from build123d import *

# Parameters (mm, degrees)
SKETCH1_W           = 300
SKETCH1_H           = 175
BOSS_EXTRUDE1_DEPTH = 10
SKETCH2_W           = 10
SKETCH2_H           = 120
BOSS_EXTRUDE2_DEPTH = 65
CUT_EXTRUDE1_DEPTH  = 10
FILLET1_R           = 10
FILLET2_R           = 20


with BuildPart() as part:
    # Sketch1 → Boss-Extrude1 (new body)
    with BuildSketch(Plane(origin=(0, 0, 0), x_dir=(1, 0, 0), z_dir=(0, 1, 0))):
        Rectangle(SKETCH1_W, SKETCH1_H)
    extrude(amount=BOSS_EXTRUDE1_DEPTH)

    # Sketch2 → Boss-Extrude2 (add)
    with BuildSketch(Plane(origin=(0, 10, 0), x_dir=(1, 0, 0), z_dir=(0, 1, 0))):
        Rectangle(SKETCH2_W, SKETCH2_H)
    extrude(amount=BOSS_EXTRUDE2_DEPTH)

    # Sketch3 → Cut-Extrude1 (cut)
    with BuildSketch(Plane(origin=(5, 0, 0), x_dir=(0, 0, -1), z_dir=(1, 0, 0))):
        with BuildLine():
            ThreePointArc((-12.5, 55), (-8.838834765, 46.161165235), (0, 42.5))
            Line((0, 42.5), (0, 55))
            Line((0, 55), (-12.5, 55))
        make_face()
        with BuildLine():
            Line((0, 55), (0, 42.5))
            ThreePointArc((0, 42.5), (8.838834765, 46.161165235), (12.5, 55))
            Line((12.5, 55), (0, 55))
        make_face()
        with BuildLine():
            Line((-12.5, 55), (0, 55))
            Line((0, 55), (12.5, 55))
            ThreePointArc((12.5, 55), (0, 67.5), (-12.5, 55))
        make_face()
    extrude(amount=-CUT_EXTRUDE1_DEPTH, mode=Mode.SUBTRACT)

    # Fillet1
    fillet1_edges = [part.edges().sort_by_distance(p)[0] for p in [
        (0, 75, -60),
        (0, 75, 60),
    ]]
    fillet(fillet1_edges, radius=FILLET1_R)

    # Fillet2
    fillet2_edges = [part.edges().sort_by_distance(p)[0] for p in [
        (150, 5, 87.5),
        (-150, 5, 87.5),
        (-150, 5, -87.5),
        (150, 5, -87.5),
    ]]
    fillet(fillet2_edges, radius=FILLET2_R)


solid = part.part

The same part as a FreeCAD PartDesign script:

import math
import FreeCAD as App
import Part
import Sketcher
from FreeCAD import Vector


def edges_at(feature, points):
    """Names of the edges that pass closest to the given points."""
    edges = feature.Shape.Edges
    near = lambda p: min(range(len(edges)), key=lambda i: edges[i].distToShape(Part.Vertex(*p))[0])
    return sorted({f"Edge{near(p) + 1}" for p in points})


def add_polygon(sketch, points):
    """Adds a closed chain of lines whose ends are joined by coincident constraints."""
    first, n = sketch.GeometryCount, len(points)
    for a, b in zip(points, points[1:] + points[:1]):
        sketch.addGeometry(Part.LineSegment(App.Vector(*a, 0), App.Vector(*b, 0)), False)
    for i in range(n):
        sketch.addConstraint(Sketcher.Constraint("Coincident", first + i, 2, first + (i + 1) % n, 1))

doc = App.newDocument("Part")
body = doc.addObject("PartDesign::Body", "Body")

# Sketch on XZ plane
sketch1 = doc.addObject("Sketcher::SketchObject", "Sketch")
body.addObject(sketch1)
sketch1.AttachmentSupport = (doc.XZ_Plane, [""])
sketch1.MapMode = "FlatFace"
add_polygon(sketch1, [(-150, -88), (-150, 88), (150, 88), (150, -88)])  # lines 0-3
sketch1.addConstraint([
    Sketcher.Constraint("Vertical", 0),
    Sketcher.Constraint("Horizontal", 1),
    Sketcher.Constraint("Vertical", 2),
    Sketcher.Constraint("Horizontal", 3),
    Sketcher.Constraint("Symmetric", 0, 2, 2, 2, -1, 1),
    Sketcher.Constraint("DistanceX", 1, 1, 1, 2, 300.0),
    Sketcher.Constraint("DistanceY", 0, 1, 0, 2, 175.0),
])
pad1 = doc.addObject("PartDesign::Pad", "Pad")
body.addObject(pad1)
pad1.Profile = sketch1
pad1.Length = 10
pad1.Reversed = True

# Sketch on XZ plane
sketch2 = doc.addObject("Sketcher::SketchObject", "Sketch001")
body.addObject(sketch2)
sketch2.AttachmentSupport = (doc.XZ_Plane, [""])
sketch2.MapMode = "FlatFace"
sketch2.AttachmentOffset = App.Placement(Vector(0, 0, -10), App.Rotation())
add_polygon(sketch2, [(-5, -60), (-5, 60), (5, 60), (5, -60)])  # lines 0-3
sketch2.addConstraint([
    Sketcher.Constraint("Vertical", 0),
    Sketcher.Constraint("Horizontal", 1),
    Sketcher.Constraint("Vertical", 2),
    Sketcher.Constraint("Horizontal", 3),
    Sketcher.Constraint("Symmetric", 0, 2, 2, 2, -1, 1),
    Sketcher.Constraint("DistanceX", 1, 1, 1, 2, 10.0),
    Sketcher.Constraint("DistanceY", 0, 1, 0, 2, 120.0),
])
pad2 = doc.addObject("PartDesign::Pad", "Pad001")
body.addObject(pad2)
pad2.Profile = sketch2
pad2.Length = 65
pad2.Reversed = True

# Sketch on YZ plane
sketch3 = doc.addObject("Sketcher::SketchObject", "Sketch002")
body.addObject(sketch3)
sketch3.AttachmentSupport = (doc.YZ_Plane, [""])
sketch3.MapMode = "FlatFace"
sketch3.AttachmentOffset = App.Placement(Vector(0, 0, 5), App.Rotation())
sketch3.addGeometry([
    Part.ArcOfCircle(Part.Circle(Vector(55, 0, 0), Vector(0, 0, 1), 12), math.radians(90), math.radians(180)),
    Part.ArcOfCircle(Part.Circle(Vector(55, 0, 0), Vector(0, 0, 1), 12), math.radians(180), math.radians(270)),
    Part.ArcOfCircle(Part.Circle(Vector(55, 0, 0), Vector(0, 0, 1), 12), math.radians(-90), math.radians(90)),
], False)
sketch3.addConstraint([
    Sketcher.Constraint("Tangent", 0, 2, 1, 1),
    Sketcher.Constraint("Tangent", 1, 2, 2, 1),
    Sketcher.Constraint("Tangent", 2, 2, 0, 1),
    Sketcher.Constraint("Symmetric", 1, 2, 2, 2, -1),
    Sketcher.Constraint("PointOnObject", 0, 2, -1),
    Sketcher.Constraint("Vertical", 2, 3, 1, 2),
    Sketcher.Constraint("Radius", 0, 12.5),
    Sketcher.Constraint("DistanceX", -1, 1, 0, 3, 55.0),
])
pocket1 = doc.addObject("PartDesign::Pocket", "Pocket")
body.addObject(pocket1)
pocket1.Profile = sketch3
pocket1.Length = 10
doc.recompute()

fillet = doc.addObject("PartDesign::Fillet", "Fillet")
body.addObject(fillet)
fillet.Base = (pocket1, edges_at(pocket1, [(0, 75, -60), (0, 75, 60)]))
fillet.Radius = 10
doc.recompute()

fillet2 = doc.addObject("PartDesign::Fillet", "Fillet001")
body.addObject(fillet2)
fillet2.Base = (fillet, edges_at(fillet, [
    (150, 5, 87.5),
    (-150, 5, 87.5),
    (-150, 5, -87.5),
    (150, 5, -87.5),
]))
fillet2.Radius = 20

doc.recompute()
